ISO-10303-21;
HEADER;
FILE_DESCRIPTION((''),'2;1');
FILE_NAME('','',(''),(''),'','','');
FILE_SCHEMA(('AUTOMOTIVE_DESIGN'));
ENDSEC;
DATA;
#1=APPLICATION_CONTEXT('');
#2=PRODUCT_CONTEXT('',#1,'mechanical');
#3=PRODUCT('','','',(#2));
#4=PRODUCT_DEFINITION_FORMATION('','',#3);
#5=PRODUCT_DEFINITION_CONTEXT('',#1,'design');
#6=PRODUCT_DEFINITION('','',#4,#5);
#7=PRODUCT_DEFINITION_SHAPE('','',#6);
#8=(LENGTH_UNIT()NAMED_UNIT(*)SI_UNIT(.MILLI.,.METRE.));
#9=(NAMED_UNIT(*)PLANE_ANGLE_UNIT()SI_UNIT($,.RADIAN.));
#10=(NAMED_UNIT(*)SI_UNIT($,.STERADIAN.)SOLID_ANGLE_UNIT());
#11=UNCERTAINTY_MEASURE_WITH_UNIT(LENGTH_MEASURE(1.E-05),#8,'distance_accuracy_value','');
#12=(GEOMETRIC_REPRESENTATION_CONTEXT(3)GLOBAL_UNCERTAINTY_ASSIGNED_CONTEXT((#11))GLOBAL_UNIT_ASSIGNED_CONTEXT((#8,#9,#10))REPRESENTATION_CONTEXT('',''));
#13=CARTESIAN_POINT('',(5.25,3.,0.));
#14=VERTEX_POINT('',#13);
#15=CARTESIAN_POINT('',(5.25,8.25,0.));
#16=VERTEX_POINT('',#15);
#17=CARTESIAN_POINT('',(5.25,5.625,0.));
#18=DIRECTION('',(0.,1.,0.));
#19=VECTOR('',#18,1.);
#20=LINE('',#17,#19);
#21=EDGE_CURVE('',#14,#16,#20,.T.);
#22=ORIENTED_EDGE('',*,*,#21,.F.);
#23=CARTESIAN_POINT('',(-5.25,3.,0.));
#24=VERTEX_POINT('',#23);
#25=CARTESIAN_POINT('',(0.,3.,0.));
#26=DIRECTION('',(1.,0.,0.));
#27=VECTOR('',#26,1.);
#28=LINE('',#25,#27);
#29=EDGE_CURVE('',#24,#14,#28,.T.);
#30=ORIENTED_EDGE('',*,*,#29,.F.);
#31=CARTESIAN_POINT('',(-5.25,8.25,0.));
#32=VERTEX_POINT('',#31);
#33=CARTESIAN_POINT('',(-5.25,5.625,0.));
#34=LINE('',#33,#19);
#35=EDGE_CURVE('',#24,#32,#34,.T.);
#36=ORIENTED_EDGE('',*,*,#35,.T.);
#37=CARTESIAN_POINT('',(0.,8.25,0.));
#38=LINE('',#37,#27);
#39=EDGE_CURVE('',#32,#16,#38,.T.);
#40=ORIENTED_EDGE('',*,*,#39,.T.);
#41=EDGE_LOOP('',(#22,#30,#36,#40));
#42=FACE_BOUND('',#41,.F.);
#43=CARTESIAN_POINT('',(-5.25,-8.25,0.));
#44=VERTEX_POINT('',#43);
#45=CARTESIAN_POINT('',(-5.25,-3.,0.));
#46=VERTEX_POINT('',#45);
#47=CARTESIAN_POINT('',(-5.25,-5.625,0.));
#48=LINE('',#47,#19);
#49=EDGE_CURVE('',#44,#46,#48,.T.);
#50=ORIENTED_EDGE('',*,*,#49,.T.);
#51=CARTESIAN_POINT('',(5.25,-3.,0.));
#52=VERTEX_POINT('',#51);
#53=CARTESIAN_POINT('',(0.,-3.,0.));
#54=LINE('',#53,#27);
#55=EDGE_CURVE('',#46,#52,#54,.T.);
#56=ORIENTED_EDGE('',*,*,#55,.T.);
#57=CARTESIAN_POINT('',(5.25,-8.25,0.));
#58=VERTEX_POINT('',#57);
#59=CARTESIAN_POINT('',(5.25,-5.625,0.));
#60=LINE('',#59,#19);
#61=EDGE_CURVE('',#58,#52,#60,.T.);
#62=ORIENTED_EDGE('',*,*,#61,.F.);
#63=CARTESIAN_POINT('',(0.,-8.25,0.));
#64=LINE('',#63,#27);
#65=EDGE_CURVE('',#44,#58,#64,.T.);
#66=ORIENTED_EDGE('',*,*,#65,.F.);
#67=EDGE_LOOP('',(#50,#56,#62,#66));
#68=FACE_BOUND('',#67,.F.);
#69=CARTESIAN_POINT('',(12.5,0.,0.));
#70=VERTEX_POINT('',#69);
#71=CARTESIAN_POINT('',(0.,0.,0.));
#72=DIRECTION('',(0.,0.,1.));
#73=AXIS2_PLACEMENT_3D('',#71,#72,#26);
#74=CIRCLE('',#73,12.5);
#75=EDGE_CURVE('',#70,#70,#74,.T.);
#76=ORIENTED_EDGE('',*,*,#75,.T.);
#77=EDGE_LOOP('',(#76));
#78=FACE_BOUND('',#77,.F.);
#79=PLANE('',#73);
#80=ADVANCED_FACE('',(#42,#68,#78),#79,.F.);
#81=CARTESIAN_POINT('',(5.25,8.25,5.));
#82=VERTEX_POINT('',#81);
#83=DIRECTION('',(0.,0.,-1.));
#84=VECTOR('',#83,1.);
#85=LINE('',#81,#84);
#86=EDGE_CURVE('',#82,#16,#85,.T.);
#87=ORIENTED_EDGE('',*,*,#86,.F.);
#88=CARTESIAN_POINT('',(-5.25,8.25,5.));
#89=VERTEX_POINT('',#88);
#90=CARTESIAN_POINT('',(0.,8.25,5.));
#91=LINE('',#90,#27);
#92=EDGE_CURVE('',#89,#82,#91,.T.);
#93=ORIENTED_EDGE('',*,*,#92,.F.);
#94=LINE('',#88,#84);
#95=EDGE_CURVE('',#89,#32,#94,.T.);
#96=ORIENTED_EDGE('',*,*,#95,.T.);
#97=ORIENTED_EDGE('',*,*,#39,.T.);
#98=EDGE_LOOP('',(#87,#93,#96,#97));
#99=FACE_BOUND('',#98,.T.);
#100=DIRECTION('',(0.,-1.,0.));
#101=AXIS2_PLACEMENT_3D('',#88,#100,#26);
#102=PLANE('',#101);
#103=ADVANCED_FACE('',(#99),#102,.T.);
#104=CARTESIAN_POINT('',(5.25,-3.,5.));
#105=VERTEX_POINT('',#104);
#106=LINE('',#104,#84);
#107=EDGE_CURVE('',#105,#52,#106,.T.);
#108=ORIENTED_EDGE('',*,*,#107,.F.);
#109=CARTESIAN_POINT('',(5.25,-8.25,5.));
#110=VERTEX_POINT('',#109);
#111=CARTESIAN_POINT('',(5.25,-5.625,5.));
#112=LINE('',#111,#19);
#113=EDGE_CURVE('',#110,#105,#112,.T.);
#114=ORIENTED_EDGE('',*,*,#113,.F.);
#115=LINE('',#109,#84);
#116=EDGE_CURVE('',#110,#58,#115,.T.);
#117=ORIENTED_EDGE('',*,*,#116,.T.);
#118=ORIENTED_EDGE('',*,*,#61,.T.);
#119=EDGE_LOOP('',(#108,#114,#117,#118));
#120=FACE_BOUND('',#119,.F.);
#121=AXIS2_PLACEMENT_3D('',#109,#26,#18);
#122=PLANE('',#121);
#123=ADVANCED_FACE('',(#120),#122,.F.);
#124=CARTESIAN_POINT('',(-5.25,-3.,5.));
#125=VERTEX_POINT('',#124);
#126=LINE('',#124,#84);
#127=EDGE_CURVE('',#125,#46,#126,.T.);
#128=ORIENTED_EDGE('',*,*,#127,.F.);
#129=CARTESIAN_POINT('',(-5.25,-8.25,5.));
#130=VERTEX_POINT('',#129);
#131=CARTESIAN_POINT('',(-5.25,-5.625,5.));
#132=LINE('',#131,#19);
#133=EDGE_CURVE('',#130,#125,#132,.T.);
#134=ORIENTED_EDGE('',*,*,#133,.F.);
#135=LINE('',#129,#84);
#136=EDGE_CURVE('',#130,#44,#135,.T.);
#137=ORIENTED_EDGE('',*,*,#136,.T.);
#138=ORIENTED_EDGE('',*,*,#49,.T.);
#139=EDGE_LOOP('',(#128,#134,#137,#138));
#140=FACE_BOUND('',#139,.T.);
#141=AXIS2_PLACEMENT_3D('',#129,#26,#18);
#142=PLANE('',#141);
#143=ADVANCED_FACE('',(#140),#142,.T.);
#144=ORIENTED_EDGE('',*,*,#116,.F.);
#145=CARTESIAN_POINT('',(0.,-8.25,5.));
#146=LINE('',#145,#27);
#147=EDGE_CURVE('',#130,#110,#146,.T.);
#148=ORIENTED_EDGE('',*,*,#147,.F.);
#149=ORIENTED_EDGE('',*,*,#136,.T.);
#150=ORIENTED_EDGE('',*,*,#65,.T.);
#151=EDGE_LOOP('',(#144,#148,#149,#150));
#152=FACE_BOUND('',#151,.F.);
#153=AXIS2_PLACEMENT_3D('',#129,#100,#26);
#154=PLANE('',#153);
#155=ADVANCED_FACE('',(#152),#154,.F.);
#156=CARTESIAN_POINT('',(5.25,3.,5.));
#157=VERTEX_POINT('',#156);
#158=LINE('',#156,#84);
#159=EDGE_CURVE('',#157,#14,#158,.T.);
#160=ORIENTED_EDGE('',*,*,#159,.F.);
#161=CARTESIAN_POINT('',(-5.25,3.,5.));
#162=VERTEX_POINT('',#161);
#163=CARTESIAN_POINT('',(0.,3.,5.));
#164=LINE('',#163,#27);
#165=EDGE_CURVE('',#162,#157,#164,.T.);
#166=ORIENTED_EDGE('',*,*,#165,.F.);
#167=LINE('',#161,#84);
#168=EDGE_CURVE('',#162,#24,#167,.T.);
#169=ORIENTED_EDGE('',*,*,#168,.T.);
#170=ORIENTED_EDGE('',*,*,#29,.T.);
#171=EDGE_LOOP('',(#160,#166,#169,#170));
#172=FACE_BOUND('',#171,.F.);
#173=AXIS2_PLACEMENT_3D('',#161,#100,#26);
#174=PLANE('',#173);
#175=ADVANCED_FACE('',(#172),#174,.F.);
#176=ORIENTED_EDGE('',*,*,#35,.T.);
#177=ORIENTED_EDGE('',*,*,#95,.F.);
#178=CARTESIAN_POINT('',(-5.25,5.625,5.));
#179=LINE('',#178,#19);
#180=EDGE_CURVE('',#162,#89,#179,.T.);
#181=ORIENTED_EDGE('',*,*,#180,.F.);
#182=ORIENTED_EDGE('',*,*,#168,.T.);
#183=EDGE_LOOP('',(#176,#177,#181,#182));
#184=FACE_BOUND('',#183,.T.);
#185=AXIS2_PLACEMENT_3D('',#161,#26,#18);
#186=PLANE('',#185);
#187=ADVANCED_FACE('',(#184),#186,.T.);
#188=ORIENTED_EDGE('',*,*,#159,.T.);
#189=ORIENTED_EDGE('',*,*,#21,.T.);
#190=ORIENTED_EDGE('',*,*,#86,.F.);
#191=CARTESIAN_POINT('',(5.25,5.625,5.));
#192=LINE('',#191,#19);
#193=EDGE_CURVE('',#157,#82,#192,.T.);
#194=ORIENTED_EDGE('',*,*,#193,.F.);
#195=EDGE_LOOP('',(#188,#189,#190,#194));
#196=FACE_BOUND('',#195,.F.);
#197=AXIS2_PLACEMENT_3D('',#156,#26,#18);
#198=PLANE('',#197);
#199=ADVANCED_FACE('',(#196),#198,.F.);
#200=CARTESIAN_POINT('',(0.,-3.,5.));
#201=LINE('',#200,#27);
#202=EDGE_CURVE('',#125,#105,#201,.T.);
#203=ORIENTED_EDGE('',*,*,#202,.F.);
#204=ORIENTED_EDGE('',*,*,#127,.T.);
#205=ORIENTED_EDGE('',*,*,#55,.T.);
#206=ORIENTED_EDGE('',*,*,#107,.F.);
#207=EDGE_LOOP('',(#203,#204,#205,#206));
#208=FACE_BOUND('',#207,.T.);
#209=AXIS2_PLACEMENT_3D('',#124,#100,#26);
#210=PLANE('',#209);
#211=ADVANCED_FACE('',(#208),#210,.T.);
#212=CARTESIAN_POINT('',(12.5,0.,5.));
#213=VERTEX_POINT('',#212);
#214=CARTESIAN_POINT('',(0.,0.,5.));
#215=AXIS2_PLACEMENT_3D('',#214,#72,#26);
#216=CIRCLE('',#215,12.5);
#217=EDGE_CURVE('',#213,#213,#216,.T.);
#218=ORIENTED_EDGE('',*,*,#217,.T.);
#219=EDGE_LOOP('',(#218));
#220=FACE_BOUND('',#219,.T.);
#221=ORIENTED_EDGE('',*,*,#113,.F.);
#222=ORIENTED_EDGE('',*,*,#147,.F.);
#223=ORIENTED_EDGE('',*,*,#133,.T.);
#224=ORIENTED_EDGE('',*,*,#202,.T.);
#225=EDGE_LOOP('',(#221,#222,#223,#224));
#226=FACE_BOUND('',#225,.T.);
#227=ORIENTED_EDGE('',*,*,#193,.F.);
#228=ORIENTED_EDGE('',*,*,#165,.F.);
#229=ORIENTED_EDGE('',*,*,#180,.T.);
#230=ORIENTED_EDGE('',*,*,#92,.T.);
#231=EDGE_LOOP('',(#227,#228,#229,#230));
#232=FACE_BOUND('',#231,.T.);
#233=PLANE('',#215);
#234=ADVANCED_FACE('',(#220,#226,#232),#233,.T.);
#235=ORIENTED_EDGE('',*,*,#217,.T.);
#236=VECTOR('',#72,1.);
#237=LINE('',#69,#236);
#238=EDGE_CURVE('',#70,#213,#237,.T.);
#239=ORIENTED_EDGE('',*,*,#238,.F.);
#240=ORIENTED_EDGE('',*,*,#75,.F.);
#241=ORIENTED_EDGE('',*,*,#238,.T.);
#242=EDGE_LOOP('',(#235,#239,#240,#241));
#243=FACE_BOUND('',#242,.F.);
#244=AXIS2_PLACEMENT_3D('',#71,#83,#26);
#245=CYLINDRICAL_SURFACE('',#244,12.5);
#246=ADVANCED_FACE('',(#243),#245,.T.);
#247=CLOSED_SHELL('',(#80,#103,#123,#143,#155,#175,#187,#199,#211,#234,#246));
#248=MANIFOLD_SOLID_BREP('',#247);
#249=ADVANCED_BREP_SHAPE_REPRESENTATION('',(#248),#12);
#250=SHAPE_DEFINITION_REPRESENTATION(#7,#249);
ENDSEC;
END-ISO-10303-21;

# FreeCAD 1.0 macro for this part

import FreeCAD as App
import Part
import Sketcher

V = App.Vector

doc = App.newDocument("Part")
body = doc.addObject("PartDesign::Body", "Body")

# Sketch on XY plane
sketch1 = body.newObject("Sketcher::SketchObject", "Sketch")
sketch1.AttachmentSupport = (doc.getObject("XY_Plane"), [""])
sketch1.MapMode = "FlatFace"
sketch1.addGeometry(Part.Circle(V(0, 0, 0), V(0, 0, 1), 12), False)
sketch1.addConstraint([
    Sketcher.Constraint("Coincident", 0, 3, -1, 1),
    Sketcher.Constraint("Diameter", 0, 25.0),
])
pad1 = body.newObject("PartDesign::Pad", "Pad")
pad1.Profile = sketch1
pad1.Length = 5
body2 = doc.addObject("PartDesign::Body", "Body001")
body2.AllowCompound = True

# Sketch on XY plane
sketch2 = body2.newObject("Sketcher::SketchObject", "Sketch001")
sketch2.AttachmentSupport = (doc.getObject("XY_Plane001"), [""])
sketch2.MapMode = "FlatFace"
sketch2.AttachmentOffset = App.Placement(V(0, 0, 5), App.Rotation())
sketch2.addGeometry([
    Part.LineSegment(V(-5, 8, 0), V(-5, 3, 0)),  # 0
    Part.LineSegment(V(-5, 3, 0), V(5, 3, 0)),  # 1
    Part.LineSegment(V(5, 3, 0), V(5, 8, 0)),  # 2
    Part.LineSegment(V(5, 8, 0), V(-5, 8, 0)),  # 3
    Part.LineSegment(V(-5, -3, 0), V(-5, -8, 0)),  # 4
    Part.LineSegment(V(-5, -8, 0), V(5, -8, 0)),  # 5
    Part.LineSegment(V(5, -8, 0), V(5, -3, 0)),  # 6
    Part.LineSegment(V(5, -3, 0), V(-5, -3, 0)),  # 7
], False)
sketch2.addConstraint([
    Sketcher.Constraint("Coincident", 0, 2, 1, 1),
    Sketcher.Constraint("Coincident", 1, 2, 2, 1),
    Sketcher.Constraint("Coincident", 2, 2, 3, 1),
    Sketcher.Constraint("Coincident", 3, 2, 0, 1),
    Sketcher.Constraint("Coincident", 4, 2, 5, 1),
    Sketcher.Constraint("Coincident", 5, 2, 6, 1),
    Sketcher.Constraint("Coincident", 6, 2, 7, 1),
    Sketcher.Constraint("Coincident", 7, 2, 4, 1),
    Sketcher.Constraint("Vertical", 0),
    Sketcher.Constraint("Horizontal", 1),
    Sketcher.Constraint("Vertical", 2),
    Sketcher.Constraint("Horizontal", 3),
    Sketcher.Constraint("Vertical", 4),
    Sketcher.Constraint("Horizontal", 5),
    Sketcher.Constraint("Vertical", 6),
    Sketcher.Constraint("Horizontal", 7),
    Sketcher.Constraint("Symmetric", 2, 2, 4, 2, -1, 1),
    Sketcher.Constraint("Symmetric", 0, 2, 6, 2, -1, 1),
    Sketcher.Constraint("Vertical", 3, 2, 4, 2),
    Sketcher.Constraint("DistanceX", 1, 1, 1, 2, 10.5),
    Sketcher.Constraint("DistanceY", -1, 1, 0, 2, 3.0),
    Sketcher.Constraint("DistanceY", 0, 2, 0, 1, 5.25),
])
pad2 = body2.newObject("PartDesign::Pad", "Pad001")
pad2.Profile = sketch2
pad2.Length = 5
pad2.Reversed = True
doc.recompute()

boolean = body.newObject("PartDesign::Boolean", "Boolean")
boolean.Type = "Cut"
boolean.addObjects([body2])

doc.recompute()
